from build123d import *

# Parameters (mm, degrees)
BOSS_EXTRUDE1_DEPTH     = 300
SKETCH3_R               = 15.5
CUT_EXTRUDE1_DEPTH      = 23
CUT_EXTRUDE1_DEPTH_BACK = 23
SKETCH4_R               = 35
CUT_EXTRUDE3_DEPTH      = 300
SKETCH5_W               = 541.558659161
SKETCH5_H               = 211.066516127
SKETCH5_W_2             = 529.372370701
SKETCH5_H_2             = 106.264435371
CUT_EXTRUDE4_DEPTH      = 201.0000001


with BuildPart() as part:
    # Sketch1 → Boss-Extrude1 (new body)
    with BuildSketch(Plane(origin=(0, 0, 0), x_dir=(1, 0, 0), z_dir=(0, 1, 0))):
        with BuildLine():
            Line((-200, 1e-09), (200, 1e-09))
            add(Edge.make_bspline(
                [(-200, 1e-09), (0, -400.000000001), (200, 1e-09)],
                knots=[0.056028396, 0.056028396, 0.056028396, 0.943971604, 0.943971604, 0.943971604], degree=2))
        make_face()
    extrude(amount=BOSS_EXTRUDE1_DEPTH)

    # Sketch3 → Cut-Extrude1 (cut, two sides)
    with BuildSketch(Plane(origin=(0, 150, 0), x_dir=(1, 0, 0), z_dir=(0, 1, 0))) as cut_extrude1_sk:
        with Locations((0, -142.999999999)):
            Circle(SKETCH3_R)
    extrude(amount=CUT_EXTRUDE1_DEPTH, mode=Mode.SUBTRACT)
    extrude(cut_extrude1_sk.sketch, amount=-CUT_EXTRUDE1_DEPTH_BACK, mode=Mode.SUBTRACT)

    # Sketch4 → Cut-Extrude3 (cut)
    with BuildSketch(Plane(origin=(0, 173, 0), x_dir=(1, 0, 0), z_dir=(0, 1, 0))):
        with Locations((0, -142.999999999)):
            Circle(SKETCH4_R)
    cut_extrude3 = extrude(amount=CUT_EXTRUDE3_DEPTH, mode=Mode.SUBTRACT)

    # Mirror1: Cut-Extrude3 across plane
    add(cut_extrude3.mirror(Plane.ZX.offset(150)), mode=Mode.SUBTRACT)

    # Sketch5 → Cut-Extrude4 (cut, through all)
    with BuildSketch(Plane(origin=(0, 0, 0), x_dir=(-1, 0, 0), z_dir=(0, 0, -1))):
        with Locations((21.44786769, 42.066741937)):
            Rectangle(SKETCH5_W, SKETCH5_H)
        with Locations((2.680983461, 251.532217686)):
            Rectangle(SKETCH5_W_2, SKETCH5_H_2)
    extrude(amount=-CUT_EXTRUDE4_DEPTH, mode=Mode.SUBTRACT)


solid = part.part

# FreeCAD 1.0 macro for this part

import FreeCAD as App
import Part
import Sketcher
from FreeCAD import Vector
Q = App.Units.Quantity

doc = App.newDocument("Part")
body = doc.addObject("PartDesign::Body", "Body")

# Sketch on XZ plane
sketch1 = body.newObject("Sketcher::SketchObject", "Sketch")
sketch1.AttachmentSupport = (doc.getObject("XZ_Plane"), [""])
sketch1.MapMode = "FlatFace"
sketch1.addGeometry(Part.LineSegment(Vector(200, 0, 0), Vector(-200, 0, 0)), False)
sketch1.addGeometry(Part.BSplineCurve([Vector(-200, 0, 0), Vector(0, 400, 0), Vector(200, 0, 0)], [3, 3], [0.056028396, 0.943971604], False, 2, [1, 1, 1], False), False)
sketch1.addConstraint(Sketcher.Constraint("Block", 1))
sketch1.addConstraint(Sketcher.Constraint("Coincident", 0, 1, 1, 2))
sketch1.addConstraint(Sketcher.Constraint("Coincident", 1, 1, 0, 2))
pad1 = body.newObject("PartDesign::Pad", "Pad")
pad1.Profile = sketch1
pad1.Length = 300
pad1.Reversed = True

# Sketch on XZ plane
sketch2 = body.newObject("Sketcher::SketchObject", "Sketch001")
sketch2.AttachmentSupport = (doc.getObject("XZ_Plane"), [""])
sketch2.MapMode = "FlatFace"
sketch2.AttachmentOffset = App.Placement(Vector(0, 0, -150), App.Rotation())
sketch2.addGeometry(Part.Circle(Vector(0, 143, 0), Vector(0, 0, 1), 16), False)
sketch2.addConstraint(Sketcher.Constraint("PointOnObject", 0, 3, -2))
sketch2.addConstraint(Sketcher.Constraint("Diameter", 0, Q("31 mm")))
sketch2.addConstraint(Sketcher.Constraint("DistanceY", -1, 1, 0, 3, Q("143 mm")))
pocket1 = body.newObject("PartDesign::Pocket", "Pocket")
pocket1.Profile = sketch2
pocket1.Type = "TwoLengths"
pocket1.Length = 23
pocket1.Length2 = 23

# Sketch on XZ plane
sketch3 = body.newObject("Sketcher::SketchObject", "Sketch002")
sketch3.AttachmentSupport = (doc.getObject("XZ_Plane"), [""])
sketch3.MapMode = "FlatFace"
sketch3.AttachmentOffset = App.Placement(Vector(0, 0, -173), App.Rotation())
sketch3.addGeometry(Part.Circle(Vector(0, 143, 0), Vector(0, 0, 1), 35), False)
sketch3.addConstraint(Sketcher.Constraint("PointOnObject", 0, 3, -2))
sketch3.addConstraint(Sketcher.Constraint("Diameter", 0, Q("70 mm")))
sketch3.addConstraint(Sketcher.Constraint("DistanceY", -1, 1, 0, 3, Q("143 mm")))
pocket2 = body.newObject("PartDesign::Pocket", "Pocket001")
pocket2.Profile = sketch3
pocket2.Length = 300
doc.recompute()

datumplane = body.newObject("PartDesign::Plane", "DatumPlane")
datumplane.AttachmentSupport = (doc.getObject("XZ_Plane"), [""])
datumplane.MapMode = "FlatFace"
datumplane.AttachmentOffset = App.Placement(Vector(0, 0, -150), App.Rotation())
mirrored = body.newObject("PartDesign::Mirrored", "Mirrored")
mirrored.Originals = [pocket2]
mirrored.MirrorPlane = (datumplane, [""])
body.Tip = mirrored

# Sketch on XY plane
sketch4 = body.newObject("Sketcher::SketchObject", "Sketch003")
sketch4.AttachmentSupport = (doc.getObject("XY_Plane"), [""])
sketch4.MapMode = "FlatFace"
sketch4.addGeometry(Part.LineSegment(Vector(249, 148, 0), Vector(249, -63, 0)), False)
sketch4.addGeometry(Part.LineSegment(Vector(249, -63, 0), Vector(-292, -63, 0)), False)
sketch4.addGeometry(Part.LineSegment(Vector(-292, -63, 0), Vector(-292, 148, 0)), False)
sketch4.addGeometry(Part.LineSegment(Vector(-292, 148, 0), Vector(249, 148, 0)), False)
sketch4.addGeometry(Part.LineSegment(Vector(262, 305, 0), Vector(262, 198, 0)), False)
sketch4.addGeometry(Part.LineSegment(Vector(262, 198, 0), Vector(-267, 198, 0)), False)
sketch4.addGeometry(Part.LineSegment(Vector(-267, 198, 0), Vector(-267, 305, 0)), False)
sketch4.addGeometry(Part.LineSegment(Vector(-267, 305, 0), Vector(262, 305, 0)), False)
sketch4.addConstraint(Sketcher.Constraint("Coincident", 0, 2, 1, 1))
sketch4.addConstraint(Sketcher.Constraint("Coincident", 1, 2, 2, 1))
sketch4.addConstraint(Sketcher.Constraint("Coincident", 2, 2, 3, 1))
sketch4.addConstraint(Sketcher.Constraint("Coincident", 3, 2, 0, 1))
sketch4.addConstraint(Sketcher.Constraint("Coincident", 4, 2, 5, 1))
sketch4.addConstraint(Sketcher.Constraint("Coincident", 5, 2, 6, 1))
sketch4.addConstraint(Sketcher.Constraint("Coincident", 6, 2, 7, 1))
sketch4.addConstraint(Sketcher.Constraint("Coincident", 7, 2, 4, 1))
sketch4.addConstraint(Sketcher.Constraint("Vertical", 0))
sketch4.addConstraint(Sketcher.Constraint("Horizontal", 1))
sketch4.addConstraint(Sketcher.Constraint("Vertical", 2))
sketch4.addConstraint(Sketcher.Constraint("Horizontal", 3))
sketch4.addConstraint(Sketcher.Constraint("Vertical", 4))
sketch4.addConstraint(Sketcher.Constraint("Horizontal", 5))
sketch4.addConstraint(Sketcher.Constraint("Vertical", 6))
sketch4.addConstraint(Sketcher.Constraint("Horizontal", 7))
sketch4.addConstraint(Sketcher.Constraint("DistanceY", -1, 1, 2, 2, Q("147.6 mm")))
sketch4.addConstraint(Sketcher.Constraint("DistanceY", -1, 1, 4, 2, Q("198.4 mm")))
sketch4.addConstraint(Sketcher.Constraint("DistanceX", 1, 2, 1, 1, Q("541.558659 mm")))
sketch4.addConstraint(Sketcher.Constraint("DistanceX", 5, 2, 5, 1, Q("529.372371 mm")))
sketch4.addConstraint(Sketcher.Constraint("DistanceX", -1, 1, 4, 2, Q("262.005202 mm")))
sketch4.addConstraint(Sketcher.Constraint("DistanceX", 2, 2, 4, 2, Q("554.232399 mm")))
sketch4.addConstraint(Sketcher.Constraint("DistanceY", 0, 2, 0, 1, Q("211.066516 mm")))
sketch4.addConstraint(Sketcher.Constraint("DistanceY", 4, 2, 4, 1, Q("106.264435 mm")))
pocket3 = body.newObject("PartDesign::Pocket", "Pocket002")
pocket3.Profile = sketch4
pocket3.Type = "ThroughAll"
pocket3.Reversed = True

doc.recompute()
